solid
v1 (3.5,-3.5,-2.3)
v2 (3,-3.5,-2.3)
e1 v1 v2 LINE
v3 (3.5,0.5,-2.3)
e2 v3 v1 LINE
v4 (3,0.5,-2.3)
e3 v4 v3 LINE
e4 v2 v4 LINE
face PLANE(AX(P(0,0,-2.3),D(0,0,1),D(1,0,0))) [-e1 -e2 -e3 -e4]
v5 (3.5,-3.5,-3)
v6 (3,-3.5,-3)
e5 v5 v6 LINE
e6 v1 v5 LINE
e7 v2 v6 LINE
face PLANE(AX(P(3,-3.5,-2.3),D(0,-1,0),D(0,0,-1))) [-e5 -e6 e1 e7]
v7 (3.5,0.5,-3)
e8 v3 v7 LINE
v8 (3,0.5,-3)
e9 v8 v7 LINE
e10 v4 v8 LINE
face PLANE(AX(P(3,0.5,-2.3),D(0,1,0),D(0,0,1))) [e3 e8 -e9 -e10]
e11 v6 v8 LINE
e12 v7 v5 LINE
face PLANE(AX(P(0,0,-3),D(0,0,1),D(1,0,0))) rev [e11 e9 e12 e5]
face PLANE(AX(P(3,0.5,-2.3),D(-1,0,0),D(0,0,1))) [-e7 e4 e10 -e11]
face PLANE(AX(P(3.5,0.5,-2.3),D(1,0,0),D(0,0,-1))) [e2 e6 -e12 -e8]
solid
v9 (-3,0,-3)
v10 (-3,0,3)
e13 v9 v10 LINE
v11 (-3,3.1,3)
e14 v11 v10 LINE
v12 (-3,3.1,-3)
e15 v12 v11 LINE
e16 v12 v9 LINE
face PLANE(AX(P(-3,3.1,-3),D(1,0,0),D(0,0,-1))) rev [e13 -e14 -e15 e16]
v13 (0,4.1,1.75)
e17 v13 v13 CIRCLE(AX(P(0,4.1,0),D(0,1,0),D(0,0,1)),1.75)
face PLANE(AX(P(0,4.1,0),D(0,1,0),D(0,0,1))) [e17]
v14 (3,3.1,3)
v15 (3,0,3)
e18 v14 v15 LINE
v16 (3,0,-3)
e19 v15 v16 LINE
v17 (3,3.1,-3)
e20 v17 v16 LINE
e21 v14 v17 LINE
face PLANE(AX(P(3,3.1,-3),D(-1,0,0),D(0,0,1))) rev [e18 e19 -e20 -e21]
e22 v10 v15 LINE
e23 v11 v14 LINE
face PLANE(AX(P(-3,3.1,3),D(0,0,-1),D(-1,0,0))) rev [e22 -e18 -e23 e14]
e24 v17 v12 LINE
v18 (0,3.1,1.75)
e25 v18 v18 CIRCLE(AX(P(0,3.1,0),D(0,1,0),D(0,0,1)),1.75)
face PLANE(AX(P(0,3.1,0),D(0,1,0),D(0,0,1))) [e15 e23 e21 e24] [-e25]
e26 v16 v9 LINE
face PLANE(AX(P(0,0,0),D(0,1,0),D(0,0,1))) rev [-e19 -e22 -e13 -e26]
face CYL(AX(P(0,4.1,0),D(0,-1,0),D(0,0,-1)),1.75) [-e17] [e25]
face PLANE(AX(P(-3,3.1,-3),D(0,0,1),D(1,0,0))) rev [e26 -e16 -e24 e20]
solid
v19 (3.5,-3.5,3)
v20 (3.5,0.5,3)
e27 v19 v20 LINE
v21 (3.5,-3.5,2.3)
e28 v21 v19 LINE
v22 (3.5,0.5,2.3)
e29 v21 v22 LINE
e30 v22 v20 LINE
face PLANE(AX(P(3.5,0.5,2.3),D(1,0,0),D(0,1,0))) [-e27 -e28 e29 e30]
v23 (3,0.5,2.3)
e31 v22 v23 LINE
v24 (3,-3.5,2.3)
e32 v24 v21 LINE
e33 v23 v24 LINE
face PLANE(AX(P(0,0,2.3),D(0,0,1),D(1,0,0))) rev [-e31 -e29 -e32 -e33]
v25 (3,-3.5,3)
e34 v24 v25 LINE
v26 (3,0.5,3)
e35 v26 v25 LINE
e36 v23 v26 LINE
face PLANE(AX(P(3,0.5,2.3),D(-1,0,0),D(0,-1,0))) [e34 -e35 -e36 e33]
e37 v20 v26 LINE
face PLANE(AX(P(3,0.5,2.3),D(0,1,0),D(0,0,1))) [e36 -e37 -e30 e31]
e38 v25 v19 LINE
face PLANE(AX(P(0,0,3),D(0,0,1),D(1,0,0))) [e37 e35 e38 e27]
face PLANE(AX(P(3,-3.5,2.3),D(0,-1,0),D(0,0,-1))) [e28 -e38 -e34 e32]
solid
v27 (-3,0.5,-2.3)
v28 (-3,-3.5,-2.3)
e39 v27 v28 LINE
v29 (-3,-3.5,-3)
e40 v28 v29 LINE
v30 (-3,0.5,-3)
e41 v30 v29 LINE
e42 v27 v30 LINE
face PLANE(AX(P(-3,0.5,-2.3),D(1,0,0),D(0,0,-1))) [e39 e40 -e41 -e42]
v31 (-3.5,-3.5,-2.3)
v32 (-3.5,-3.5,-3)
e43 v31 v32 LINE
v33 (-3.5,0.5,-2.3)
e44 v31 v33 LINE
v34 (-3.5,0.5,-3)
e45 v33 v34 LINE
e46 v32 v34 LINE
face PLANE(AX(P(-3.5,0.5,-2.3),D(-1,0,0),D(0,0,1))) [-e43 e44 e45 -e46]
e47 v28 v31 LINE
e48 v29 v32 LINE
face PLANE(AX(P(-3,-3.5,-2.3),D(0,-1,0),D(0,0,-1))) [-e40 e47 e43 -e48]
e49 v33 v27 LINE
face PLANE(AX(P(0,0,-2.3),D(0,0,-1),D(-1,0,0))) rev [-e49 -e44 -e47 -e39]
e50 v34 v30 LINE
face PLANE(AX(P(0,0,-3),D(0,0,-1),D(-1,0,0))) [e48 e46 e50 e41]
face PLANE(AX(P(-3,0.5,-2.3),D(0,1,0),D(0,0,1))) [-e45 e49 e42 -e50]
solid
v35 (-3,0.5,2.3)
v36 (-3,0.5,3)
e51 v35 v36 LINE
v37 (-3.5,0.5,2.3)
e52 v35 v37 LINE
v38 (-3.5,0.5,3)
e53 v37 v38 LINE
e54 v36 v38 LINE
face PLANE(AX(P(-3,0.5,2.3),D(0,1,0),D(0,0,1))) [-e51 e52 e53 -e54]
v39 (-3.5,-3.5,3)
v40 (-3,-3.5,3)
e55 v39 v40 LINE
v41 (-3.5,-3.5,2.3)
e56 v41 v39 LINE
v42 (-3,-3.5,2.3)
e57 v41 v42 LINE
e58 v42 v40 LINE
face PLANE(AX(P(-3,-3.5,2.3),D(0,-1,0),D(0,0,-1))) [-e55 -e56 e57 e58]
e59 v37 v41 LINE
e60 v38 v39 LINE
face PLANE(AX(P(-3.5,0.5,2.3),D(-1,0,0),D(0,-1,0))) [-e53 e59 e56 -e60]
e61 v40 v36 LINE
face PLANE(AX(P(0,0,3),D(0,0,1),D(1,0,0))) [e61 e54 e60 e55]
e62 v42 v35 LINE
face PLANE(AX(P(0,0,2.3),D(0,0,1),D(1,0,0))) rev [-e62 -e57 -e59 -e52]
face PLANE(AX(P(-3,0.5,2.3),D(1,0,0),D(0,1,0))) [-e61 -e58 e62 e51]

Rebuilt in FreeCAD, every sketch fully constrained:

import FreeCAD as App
import Part
import Sketcher

V = App.Vector

doc = App.newDocument("Part")
body = doc.addObject("PartDesign::Body", "Body")

# Sketch on XZ plane
sketch1 = body.newObject("Sketcher::SketchObject", "Sketch")
sketch1.AttachmentSupport = (doc.getObject("XZ_Plane"), [""])
sketch1.MapMode = "FlatFace"
sketch1.addGeometry(Part.LineSegment(V(-3, -3, 0), V(-3, 3, 0)), False)
sketch1.addGeometry(Part.LineSegment(V(-3, 3, 0), V(3, 3, 0)), False)
sketch1.addGeometry(Part.LineSegment(V(3, 3, 0), V(3, -3, 0)), False)
sketch1.addGeometry(Part.LineSegment(V(3, -3, 0), V(-3, -3, 0)), False)
sketch1.addConstraint(Sketcher.Constraint("Coincident", 0, 2, 1, 1))
sketch1.addConstraint(Sketcher.Constraint("Coincident", 1, 2, 2, 1))
sketch1.addConstraint(Sketcher.Constraint("Coincident", 2, 2, 3, 1))
sketch1.addConstraint(Sketcher.Constraint("Coincident", 3, 2, 0, 1))
sketch1.addConstraint(Sketcher.Constraint("Vertical", 0))
sketch1.addConstraint(Sketcher.Constraint("Horizontal", 1))
sketch1.addConstraint(Sketcher.Constraint("Vertical", 2))
sketch1.addConstraint(Sketcher.Constraint("Horizontal", 3))
sketch1.addConstraint(Sketcher.Constraint("Symmetric", 0, 2, 2, 2, -1, 1))
sketch1.addConstraint(Sketcher.Constraint("Equal", 3, 0))
sketch1.addConstraint(Sketcher.Constraint("DistanceX", 1, 1, 1, 2, 6.0))
pad1 = body.newObject("PartDesign::Pad", "Pad")
pad1.Profile = sketch1
pad1.Length = 3.1
pad1.Reversed = True

# Sketch on XZ plane
sketch2 = body.newObject("Sketcher::SketchObject", "Sketch001")
sketch2.AttachmentSupport = (doc.getObject("XZ_Plane"), [""])
sketch2.MapMode = "FlatFace"
sketch2.AttachmentOffset = App.Placement(V(0, 0, -3.1), App.Rotation())
sketch2.addGeometry(Part.Circle(V(0, 0, 0), V(0, 0, 1), 1.8), False)
sketch2.addConstraint(Sketcher.Constraint("Coincident", 0, 3, -1, 1))
sketch2.addConstraint(Sketcher.Constraint("Diameter", 0, 3.5))
pad2 = body.newObject("PartDesign::Pad", "Pad001")
pad2.Profile = sketch2
pad2.Length = 1
pad2.Reversed = True
body2 = doc.addObject("PartDesign::Body", "Body001")

# Sketch on XY plane
sketch3 = body2.newObject("Sketcher::SketchObject", "Sketch002")
sketch3.AttachmentSupport = (doc.getObject("XY_Plane001"), [""])
sketch3.MapMode = "FlatFace"
sketch3.AttachmentOffset = App.Placement(V(0, 0, 3), App.Rotation())
sketch3.addGeometry(Part.LineSegment(V(3, 0.5, 0), V(3, -3.5, 0)), False)
sketch3.addGeometry(Part.LineSegment(V(3, -3.5, 0), V(3.5, -3.5, 0)), False)
sketch3.addGeometry(Part.LineSegment(V(3.5, -3.5, 0), V(3.5, 0.5, 0)), False)
sketch3.addGeometry(Part.LineSegment(V(3.5, 0.5, 0), V(3, 0.5, 0)), False)
sketch3.addConstraint(Sketcher.Constraint("Coincident", 0, 2, 1, 1))
sketch3.addConstraint(Sketcher.Constraint("Coincident", 1, 2, 2, 1))
sketch3.addConstraint(Sketcher.Constraint("Coincident", 2, 2, 3, 1))
sketch3.addConstraint(Sketcher.Constraint("Coincident", 3, 2, 0, 1))
sketch3.addConstraint(Sketcher.Constraint("Vertical", 0))
sketch3.addConstraint(Sketcher.Constraint("Horizontal", 1))
sketch3.addConstraint(Sketcher.Constraint("Vertical", 2))
sketch3.addConstraint(Sketcher.Constraint("Horizontal", 3))
sketch3.addConstraint(Sketcher.Constraint("DistanceY", 0, 2, 0, 1, 4.0))
sketch3.addConstraint(Sketcher.Constraint("DistanceX", 1, 1, 1, 2, 0.5))
sketch3.addConstraint(Sketcher.Constraint("DistanceX", -1, 1, 0, 2, 3.0))
sketch3.addConstraint(Sketcher.Constraint("DistanceY", 0, 2, -1, 1, 3.5))
pad3 = body2.newObject("PartDesign::Pad", "Pad002")
pad3.Profile = sketch3
pad3.Length = 0.7
pad3.Reversed = True
body3 = doc.addObject("PartDesign::Body", "Body002")

# Sketch on XY plane
sketch4 = body3.newObject("Sketcher::SketchObject", "Sketch003")
sketch4.AttachmentSupport = (doc.getObject("XY_Plane002"), [""])
sketch4.MapMode = "FlatFace"
sketch4.AttachmentOffset = App.Placement(V(0, 0, 3), App.Rotation())
sketch4.addGeometry(Part.LineSegment(V(-3.5, 0.5, 0), V(-3.5, -3.5, 0)), False)
sketch4.addGeometry(Part.LineSegment(V(-3.5, -3.5, 0), V(-3, -3.5, 0)), False)
sketch4.addGeometry(Part.LineSegment(V(-3, -3.5, 0), V(-3, 0.5, 0)), False)
sketch4.addGeometry(Part.LineSegment(V(-3, 0.5, 0), V(-3.5, 0.5, 0)), False)
sketch4.addConstraint(Sketcher.Constraint("Coincident", 0, 2, 1, 1))
sketch4.addConstraint(Sketcher.Constraint("Coincident", 1, 2, 2, 1))
sketch4.addConstraint(Sketcher.Constraint("Coincident", 2, 2, 3, 1))
sketch4.addConstraint(Sketcher.Constraint("Coincident", 3, 2, 0, 1))
sketch4.addConstraint(Sketcher.Constraint("Vertical", 0))
sketch4.addConstraint(Sketcher.Constraint("Horizontal", 1))
sketch4.addConstraint(Sketcher.Constraint("Vertical", 2))
sketch4.addConstraint(Sketcher.Constraint("Horizontal", 3))
sketch4.addConstraint(Sketcher.Constraint("DistanceY", 0, 2, 0, 1, 4.0))
sketch4.addConstraint(Sketcher.Constraint("DistanceX", 1, 1, 1, 2, 0.5))
sketch4.addConstraint(Sketcher.Constraint("DistanceX", 1, 2, -1, 1, 3.0))
sketch4.addConstraint(Sketcher.Constraint("DistanceY", 0, 2, -1, 1, 3.5))
pad4 = body3.newObject("PartDesign::Pad", "Pad003")
pad4.Profile = sketch4
pad4.Length = 0.7
pad4.Reversed = True
body4 = doc.addObject("PartDesign::Body", "Body003")

# Sketch on XY plane
sketch5 = body4.newObject("Sketcher::SketchObject", "Sketch004")
sketch5.AttachmentSupport = (doc.getObject("XY_Plane003"), [""])
sketch5.MapMode = "FlatFace"
sketch5.AttachmentOffset = App.Placement(V(0, 0, -3), App.Rotation())
sketch5.addGeometry(Part.LineSegment(V(3.5, 0.5, 0), V(3.5, -3.5, 0)), False)
sketch5.addGeometry(Part.LineSegment(V(3.5, -3.5, 0), V(3, -3.5, 0)), False)
sketch5.addGeometry(Part.LineSegment(V(3, -3.5, 0), V(3, 0.5, 0)), False)
sketch5.addGeometry(Part.LineSegment(V(3, 0.5, 0), V(3.5, 0.5, 0)), False)
sketch5.addConstraint(Sketcher.Constraint("Coincident", 0, 2, 1, 1))
sketch5.addConstraint(Sketcher.Constraint("Coincident", 1, 2, 2, 1))
sketch5.addConstraint(Sketcher.Constraint("Coincident", 2, 2, 3, 1))
sketch5.addConstraint(Sketcher.Constraint("Coincident", 3, 2, 0, 1))
sketch5.addConstraint(Sketcher.Constraint("Vertical", 0))
sketch5.addConstraint(Sketcher.Constraint("Horizontal", 1))
sketch5.addConstraint(Sketcher.Constraint("Vertical", 2))
sketch5.addConstraint(Sketcher.Constraint("Horizontal", 3))
sketch5.addConstraint(Sketcher.Constraint("DistanceY", 0, 2, 0, 1, 4.0))
sketch5.addConstraint(Sketcher.Constraint("DistanceX", 1, 2, 1, 1, 0.5))
sketch5.addConstraint(Sketcher.Constraint("DistanceX", -1, 1, 1, 2, 3.0))
sketch5.addConstraint(Sketcher.Constraint("DistanceY", 0, 2, -1, 1, 3.5))
pad5 = body4.newObject("PartDesign::Pad", "Pad004")
pad5.Profile = sketch5
pad5.Length = 0.7
body5 = doc.addObject("PartDesign::Body", "Body004")

# Sketch on XY plane
sketch6 = body5.newObject("Sketcher::SketchObject", "Sketch005")
sketch6.AttachmentSupport = (doc.getObject("XY_Plane004"), [""])
sketch6.MapMode = "FlatFace"
sketch6.AttachmentOffset = App.Placement(V(0, 0, -3), App.Rotation())
sketch6.addGeometry(Part.LineSegment(V(-3, 0.5, 0), V(-3, -3.5, 0)), False)
sketch6.addGeometry(Part.LineSegment(V(-3, -3.5, 0), V(-3.5, -3.5, 0)), False)
sketch6.addGeometry(Part.LineSegment(V(-3.5, -3.5, 0), V(-3.5, 0.5, 0)), False)
sketch6.addGeometry(Part.LineSegment(V(-3.5, 0.5, 0), V(-3, 0.5, 0)), False)
sketch6.addConstraint(Sketcher.Constraint("Coincident", 0, 2, 1, 1))
sketch6.addConstraint(Sketcher.Constraint("Coincident", 1, 2, 2, 1))
sketch6.addConstraint(Sketcher.Constraint("Coincident", 2, 2, 3, 1))
sketch6.addConstraint(Sketcher.Constraint("Coincident", 3, 2, 0, 1))
sketch6.addConstraint(Sketcher.Constraint("Vertical", 0))
sketch6.addConstraint(Sketcher.Constraint("Horizontal", 1))
sketch6.addConstraint(Sketcher.Constraint("Vertical", 2))
sketch6.addConstraint(Sketcher.Constraint("Horizontal", 3))
sketch6.addConstraint(Sketcher.Constraint("DistanceY", 0, 2, 0, 1, 4.0))
sketch6.addConstraint(Sketcher.Constraint("DistanceX", 1, 2, 1, 1, 0.5))
sketch6.addConstraint(Sketcher.Constraint("DistanceX", 0, 2, -1, 1, 3.0))
sketch6.addConstraint(Sketcher.Constraint("DistanceY", 0, 2, -1, 1, 3.5))
pad6 = body5.newObject("PartDesign::Pad", "Pad005")
pad6.Profile = sketch6
pad6.Length = 0.7

doc.recompute()
